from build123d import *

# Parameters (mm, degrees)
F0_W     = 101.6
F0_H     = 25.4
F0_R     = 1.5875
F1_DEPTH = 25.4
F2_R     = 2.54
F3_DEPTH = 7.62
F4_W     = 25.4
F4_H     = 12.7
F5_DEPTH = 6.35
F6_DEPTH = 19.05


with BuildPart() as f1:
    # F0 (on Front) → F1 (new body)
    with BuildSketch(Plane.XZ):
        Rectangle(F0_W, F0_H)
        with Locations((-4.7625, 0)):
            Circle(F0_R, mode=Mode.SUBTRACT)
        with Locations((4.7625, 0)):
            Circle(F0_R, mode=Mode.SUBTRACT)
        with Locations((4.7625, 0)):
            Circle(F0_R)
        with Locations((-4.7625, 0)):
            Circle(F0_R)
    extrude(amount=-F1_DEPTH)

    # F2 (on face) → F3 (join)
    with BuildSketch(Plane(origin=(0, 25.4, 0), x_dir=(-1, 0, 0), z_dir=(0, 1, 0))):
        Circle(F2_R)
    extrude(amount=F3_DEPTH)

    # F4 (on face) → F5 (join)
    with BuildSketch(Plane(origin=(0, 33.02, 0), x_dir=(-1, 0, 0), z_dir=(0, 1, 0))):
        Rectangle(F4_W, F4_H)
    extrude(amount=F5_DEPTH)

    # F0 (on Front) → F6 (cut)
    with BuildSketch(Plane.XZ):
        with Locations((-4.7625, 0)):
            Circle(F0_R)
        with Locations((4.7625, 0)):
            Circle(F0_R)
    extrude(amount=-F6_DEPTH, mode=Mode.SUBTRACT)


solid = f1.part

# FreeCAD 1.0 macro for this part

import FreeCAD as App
import Part
import Sketcher
Q = App.Units.Quantity

doc = App.newDocument("Part")
params = doc.addObject("Spreadsheet::Sheet", "Params")
for row, (alias, value) in enumerate([
    ("sketch1_width", "4 in"),
    ("sketch1_height", "1 in"),
    ("pad1_length", "1 in"),
    ("sketch2_diameter", "0.2 in"),
    ("pad2_length", "0.3 in"),
    ("sketch3_width", "1 in"),
    ("sketch3_height", "0.5 in"),
    ("pad3_length", "0.25 in"),
    ("sketch4_diameter", "0.125 in"),
    ("pocket1_length", "0.75 in"),
], start=1):
    params.set(f"A{row}", alias)
    params.set(f"B{row}", "=" + value)
    params.setAlias(f"B{row}", alias)

body = doc.addObject("PartDesign::Body", "Body")

# Sketch on XZ plane
sketch1 = body.newObject("Sketcher::SketchObject", "Sketch")
sketch1.AttachmentSupport = (doc.getObject("XZ_Plane"), [""])
sketch1.MapMode = "FlatFace"
sketch1.addGeometry([
    Part.LineSegment(App.Vector(-51, 13, 0), App.Vector(-51, -13, 0)),
    Part.LineSegment(App.Vector(-51, -13, 0), App.Vector(51, -13, 0)),
    Part.LineSegment(App.Vector(51, -13, 0), App.Vector(51, 13, 0)),
    Part.LineSegment(App.Vector(51, 13, 0), App.Vector(-51, 13, 0)),
], False)
sketch1.addConstraint([
    Sketcher.Constraint("Coincident", 0, 2, 1, 1),
    Sketcher.Constraint("Coincident", 1, 2, 2, 1),
    Sketcher.Constraint("Coincident", 2, 2, 3, 1),
    Sketcher.Constraint("Coincident", 3, 2, 0, 1),
    Sketcher.Constraint("Vertical", 0),
    Sketcher.Constraint("Horizontal", 1),
    Sketcher.Constraint("Vertical", 2),
    Sketcher.Constraint("Horizontal", 3),
    Sketcher.Constraint("Symmetric", 0, 2, 2, 2, -1, 1),
    Sketcher.Constraint("DistanceX", 1, 1, 1, 2, Q("4 in")),
    Sketcher.Constraint("DistanceY", 0, 2, 0, 1, Q("1 in")),
])
sketch1.setExpression("Constraints[9]", "Params.sketch1_width")
sketch1.setExpression("Constraints[10]", "Params.sketch1_height")
pad1 = body.newObject("PartDesign::Pad", "Pad")
pad1.Profile = sketch1
pad1.setExpression("Length", "Params.pad1_length")
pad1.Reversed = True

# Sketch on XZ plane
sketch2 = body.newObject("Sketcher::SketchObject", "Sketch001")
sketch2.AttachmentSupport = (doc.getObject("XZ_Plane"), [""])
sketch2.MapMode = "FlatFace"
sketch2.AttachmentOffset = App.Placement(App.Vector(0, 0, -1 * 25.4), App.Rotation())
sketch2.addGeometry(Part.Circle(App.Vector(0, 0, 0), App.Vector(0, 0, 1), 2.5), False)
sketch2.addConstraint([
    Sketcher.Constraint("Coincident", 0, 3, -1, 1),
    Sketcher.Constraint("Diameter", 0, Q("0.2 in")),
])
sketch2.setExpression("Constraints[1]", "Params.sketch2_diameter")
pad2 = body.newObject("PartDesign::Pad", "Pad001")
pad2.Profile = sketch2
pad2.setExpression("Length", "Params.pad2_length")
pad2.Reversed = True

# Sketch on XZ plane
sketch3 = body.newObject("Sketcher::SketchObject", "Sketch002")
sketch3.AttachmentSupport = (doc.getObject("XZ_Plane"), [""])
sketch3.MapMode = "FlatFace"
sketch3.AttachmentOffset = App.Placement(App.Vector(0, 0, -1.3 * 25.4), App.Rotation())
sketch3.addGeometry([
    Part.LineSegment(App.Vector(13, 6, 0), App.Vector(13, -6, 0)),
    Part.LineSegment(App.Vector(13, -6, 0), App.Vector(-13, -6, 0)),
    Part.LineSegment(App.Vector(-13, -6, 0), App.Vector(-13, 6, 0)),
    Part.LineSegment(App.Vector(-13, 6, 0), App.Vector(13, 6, 0)),
], False)
sketch3.addConstraint([
    Sketcher.Constraint("Coincident", 0, 2, 1, 1),
    Sketcher.Constraint("Coincident", 1, 2, 2, 1),
    Sketcher.Constraint("Coincident", 2, 2, 3, 1),
    Sketcher.Constraint("Coincident", 3, 2, 0, 1),
    Sketcher.Constraint("Vertical", 0),
    Sketcher.Constraint("Horizontal", 1),
    Sketcher.Constraint("Vertical", 2),
    Sketcher.Constraint("Horizontal", 3),
    Sketcher.Constraint("Symmetric", 0, 2, 2, 2, -1, 1),
    Sketcher.Constraint("DistanceX", 1, 2, 1, 1, Q("1 in")),
    Sketcher.Constraint("DistanceY", 0, 2, 0, 1, Q("0.5 in")),
])
sketch3.setExpression("Constraints[9]", "Params.sketch3_width")
sketch3.setExpression("Constraints[10]", "Params.sketch3_height")
pad3 = body.newObject("PartDesign::Pad", "Pad002")
pad3.Profile = sketch3
pad3.setExpression("Length", "Params.pad3_length")
pad3.Reversed = True

# Sketch on XZ plane
sketch4 = body.newObject("Sketcher::SketchObject", "Sketch003")
sketch4.AttachmentSupport = (doc.getObject("XZ_Plane"), [""])
sketch4.MapMode = "FlatFace"
sketch4.addGeometry([
    Part.Circle(App.Vector(-4.8, 0, 0), App.Vector(0, 0, 1), 1.6),
    Part.Circle(App.Vector(4.8, 0, 0), App.Vector(0, 0, 1), 1.6),
], False)
sketch4.addConstraint([
    Sketcher.Constraint("Equal", 0, 1),
    Sketcher.Constraint("Symmetric", 0, 3, 1, 3, -1, 1),
    Sketcher.Constraint("PointOnObject", 0, 3, -1),
    Sketcher.Constraint("Diameter", 0, Q("0.125 in")),
    Sketcher.Constraint("DistanceX", 0, 3, -1, 1, Q("0.1875 in")),
])
sketch4.setExpression("Constraints[3]", "Params.sketch4_diameter")
pocket1 = body.newObject("PartDesign::Pocket", "Pocket")
pocket1.Profile = sketch4
pocket1.setExpression("Length", "Params.pocket1_length")

doc.recompute()
